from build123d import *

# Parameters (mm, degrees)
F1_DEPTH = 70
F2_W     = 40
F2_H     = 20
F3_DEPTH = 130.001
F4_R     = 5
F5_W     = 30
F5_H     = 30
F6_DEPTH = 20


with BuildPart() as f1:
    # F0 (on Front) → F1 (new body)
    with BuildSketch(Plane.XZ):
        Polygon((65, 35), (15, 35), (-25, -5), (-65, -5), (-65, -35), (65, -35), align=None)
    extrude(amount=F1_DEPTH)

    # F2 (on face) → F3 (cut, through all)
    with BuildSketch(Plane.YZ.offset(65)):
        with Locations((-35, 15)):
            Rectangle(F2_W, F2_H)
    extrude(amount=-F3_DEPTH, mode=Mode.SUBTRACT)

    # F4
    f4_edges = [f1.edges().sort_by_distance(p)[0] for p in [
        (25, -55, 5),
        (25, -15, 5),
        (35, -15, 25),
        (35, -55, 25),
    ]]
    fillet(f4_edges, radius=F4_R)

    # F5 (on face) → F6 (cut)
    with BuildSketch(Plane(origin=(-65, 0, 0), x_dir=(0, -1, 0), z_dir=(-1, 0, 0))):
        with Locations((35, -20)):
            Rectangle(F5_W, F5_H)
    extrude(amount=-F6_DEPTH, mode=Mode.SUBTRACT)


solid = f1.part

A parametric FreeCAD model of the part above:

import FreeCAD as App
import Part
import Sketcher
from FreeCAD import Vector


def edges_at(feature, points):
    """Names of the edges that pass closest to the given points."""
    edges = feature.Shape.Edges
    near = lambda p: min(range(len(edges)), key=lambda i: edges[i].distToShape(Part.Vertex(*p))[0])
    return sorted({f"Edge{near(p) + 1}" for p in points})

doc = App.newDocument("Part")
params = doc.addObject("Spreadsheet::Sheet", "Params")
for row, (alias, value) in enumerate([
    ("sketch1_width", "50 mm"),
    ("sketch1_width2", "40 mm"),
    ("sketch1_width3", "130 mm"),
    ("sketch1_height", "30 mm"),
    ("sketch1_height2", "70 mm"),
    ("pad1_length", "70 mm"),
    ("sketch2_width", "40 mm"),
    ("sketch2_height", "20 mm"),
    ("fillet_radius", "5 mm"),
    ("sketch3_width", "30 mm"),
    ("pocket2_length", "20 mm"),
], start=1):
    params.set(f"A{row}", alias)
    params.set(f"B{row}", "=" + value)
    params.setAlias(f"B{row}", alias)

body = doc.addObject("PartDesign::Body", "Body")

sketch1 = doc.addObject("Sketcher::SketchObject", "Sketch")
body.addObject(sketch1)
sketch1.AttachmentSupport = (doc.XZ_Plane, [""])
sketch1.MapMode = "FlatFace"
sketch1.addGeometry([
    Part.LineSegment(Vector(65, 35, 0), Vector(15, 35, 0)),
    Part.LineSegment(Vector(15, 35, 0), Vector(-25, -5, 0)),
    Part.LineSegment(Vector(-25, -5, 0), Vector(-65, -5, 0)),
    Part.LineSegment(Vector(-65, -5, 0), Vector(-65, -35, 0)),
    Part.LineSegment(Vector(-65, -35, 0), Vector(65, -35, 0)),
    Part.LineSegment(Vector(65, -35, 0), Vector(65, 35, 0)),
], False)
sketch1.addConstraint([
    Sketcher.Constraint("Coincident", 0, 2, 1, 1),
    Sketcher.Constraint("Coincident", 1, 2, 2, 1),
    Sketcher.Constraint("Coincident", 2, 2, 3, 1),
    Sketcher.Constraint("Coincident", 3, 2, 4, 1),
    Sketcher.Constraint("Coincident", 4, 2, 5, 1),
    Sketcher.Constraint("Coincident", 5, 2, 0, 1),
    Sketcher.Constraint("Horizontal", 0),
    Sketcher.Constraint("Horizontal", 2),
    Sketcher.Constraint("Vertical", 3),
    Sketcher.Constraint("Horizontal", 4),
    Sketcher.Constraint("Vertical", 5),
    Sketcher.Constraint("Symmetric", 3, 2, 5, 2, -1, 1),
    Sketcher.Constraint("DistanceX", 0, 2, 0, 1, 50.0),
    Sketcher.Constraint("DistanceX", 2, 2, 2, 1, 40.0),
    Sketcher.Constraint("DistanceX", 4, 1, 4, 2, 130.0),
    Sketcher.Constraint("DistanceY", 3, 2, 3, 1, 30.0),
    Sketcher.Constraint("DistanceY", 5, 1, 5, 2, 70.0),
])
sketch1.setExpression("Constraints[12]", "Params.sketch1_width")
sketch1.setExpression("Constraints[13]", "Params.sketch1_width2")
sketch1.setExpression("Constraints[14]", "Params.sketch1_width3")
sketch1.setExpression("Constraints[15]", "Params.sketch1_height")
sketch1.setExpression("Constraints[16]", "Params.sketch1_height2")
pad1 = doc.addObject("PartDesign::Pad", "Pad")
body.addObject(pad1)
pad1.Profile = sketch1
pad1.setExpression("Length", "Params.pad1_length")

sketch2 = doc.addObject("Sketcher::SketchObject", "Sketch001")
body.addObject(sketch2)
sketch2.AttachmentSupport = (doc.YZ_Plane, [""])
sketch2.MapMode = "FlatFace"
sketch2.AttachmentOffset = App.Placement(Vector(0, 0, 65), App.Rotation())
sketch2.addGeometry([
    Part.LineSegment(Vector(-55, 25, 0), Vector(-55, 5, 0)),
    Part.LineSegment(Vector(-55, 5, 0), Vector(-15, 5, 0)),
    Part.LineSegment(Vector(-15, 5, 0), Vector(-15, 25, 0)),
    Part.LineSegment(Vector(-15, 25, 0), Vector(-55, 25, 0)),
], False)
sketch2.addConstraint([
    Sketcher.Constraint("Coincident", 0, 2, 1, 1),
    Sketcher.Constraint("Coincident", 1, 2, 2, 1),
    Sketcher.Constraint("Coincident", 2, 2, 3, 1),
    Sketcher.Constraint("Coincident", 3, 2, 0, 1),
    Sketcher.Constraint("Vertical", 0),
    Sketcher.Constraint("Horizontal", 1),
    Sketcher.Constraint("Vertical", 2),
    Sketcher.Constraint("Horizontal", 3),
    Sketcher.Constraint("DistanceX", 1, 1, 1, 2, 40.0),
    Sketcher.Constraint("DistanceY", 0, 2, 0, 1, 20.0),
    Sketcher.Constraint("DistanceX", 0, 2, -1, 1, 55.0),
    Sketcher.Constraint("DistanceY", -1, 1, 0, 2, 5.0),
])
sketch2.setExpression("Constraints[8]", "Params.sketch2_width")
sketch2.setExpression("Constraints[9]", "Params.sketch2_height")
pocket1 = doc.addObject("PartDesign::Pocket", "Pocket")
body.addObject(pocket1)
pocket1.Profile = sketch2
pocket1.Type = "ThroughAll"
doc.recompute()

fillet = doc.addObject("PartDesign::Fillet", "Fillet")
body.addObject(fillet)
fillet.Base = (pocket1, edges_at(pocket1, [
    (25, -55, 5),
    (25, -15, 5),
    (35, -15, 25),
    (35, -55, 25),
]))
fillet.setExpression("Radius", "Params.fillet_radius")

sketch3 = doc.addObject("Sketcher::SketchObject", "Sketch002")
body.addObject(sketch3)
sketch3.AttachmentSupport = (doc.YZ_Plane, [""])
sketch3.MapMode = "FlatFace"
sketch3.AttachmentOffset = App.Placement(Vector(0, 0, -65), App.Rotation())
sketch3.addGeometry([
    Part.LineSegment(Vector(-20, -5, 0), Vector(-20, -35, 0)),
    Part.LineSegment(Vector(-20, -35, 0), Vector(-50, -35, 0)),
    Part.LineSegment(Vector(-50, -35, 0), Vector(-50, -5, 0)),
    Part.LineSegment(Vector(-50, -5, 0), Vector(-20, -5, 0)),
], False)
sketch3.addConstraint([
    Sketcher.Constraint("Coincident", 0, 2, 1, 1),
    Sketcher.Constraint("Coincident", 1, 2, 2, 1),
    Sketcher.Constraint("Coincident", 2, 2, 3, 1),
    Sketcher.Constraint("Coincident", 3, 2, 0, 1),
    Sketcher.Constraint("Vertical", 0),
    Sketcher.Constraint("Horizontal", 1),
    Sketcher.Constraint("Vertical", 2),
    Sketcher.Constraint("Horizontal", 3),
    Sketcher.Constraint("Equal", 3, 0),
    Sketcher.Constraint("DistanceX", 1, 2, 1, 1, 30.0),
    Sketcher.Constraint("DistanceX", 0, 2, -1, 1, 20.0),
    Sketcher.Constraint("DistanceY", 0, 2, -1, 1, 35.0),
])
sketch3.setExpression("Constraints[9]", "Params.sketch3_width")
pocket2 = doc.addObject("PartDesign::Pocket", "Pocket001")
body.addObject(pocket2)
pocket2.Profile = sketch3
pocket2.setExpression("Length", "Params.pocket2_length")
pocket2.Reversed = True

doc.recompute()
